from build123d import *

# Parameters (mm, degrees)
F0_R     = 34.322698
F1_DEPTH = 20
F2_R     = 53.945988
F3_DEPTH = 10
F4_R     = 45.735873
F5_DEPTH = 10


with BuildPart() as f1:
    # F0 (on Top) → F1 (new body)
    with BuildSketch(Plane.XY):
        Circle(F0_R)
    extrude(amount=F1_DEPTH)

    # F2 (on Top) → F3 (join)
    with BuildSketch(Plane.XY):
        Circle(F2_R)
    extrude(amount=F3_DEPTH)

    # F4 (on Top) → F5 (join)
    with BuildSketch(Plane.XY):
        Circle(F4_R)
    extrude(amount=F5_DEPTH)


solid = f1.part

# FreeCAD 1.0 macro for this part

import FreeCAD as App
import Part
import Sketcher

doc = App.newDocument("Part")
body = doc.addObject("PartDesign::Body", "Body")

sketch1 = body.newObject("Sketcher::SketchObject", "Sketch")
sketch1.AttachmentSupport = (doc.getObject("XY_Plane"), [""])
sketch1.MapMode = "FlatFace"
sketch1.addGeometry(Part.Circle(App.Vector(0, 0, 0), App.Vector(0, 0, 1), 34), False)
sketch1.addConstraint([
    Sketcher.Constraint("Coincident", 0, 3, -1, 1),
    Sketcher.Constraint("Diameter", 0, 68.645396),
])
pad1 = body.newObject("PartDesign::Pad", "Pad")
pad1.Profile = sketch1
pad1.Length = 20

sketch2 = body.newObject("Sketcher::SketchObject", "Sketch001")
sketch2.AttachmentSupport = (doc.getObject("XY_Plane"), [""])
sketch2.MapMode = "FlatFace"
sketch2.addGeometry(Part.Circle(App.Vector(0, 0, 0), App.Vector(0, 0, 1), 54), False)
sketch2.addConstraint([
    Sketcher.Constraint("Coincident", 0, 3, -1, 1),
    Sketcher.Constraint("Diameter", 0, 107.891976),
])
pad2 = body.newObject("PartDesign::Pad", "Pad001")
pad2.Profile = sketch2
pad2.Length = 10

sketch3 = body.newObject("Sketcher::SketchObject", "Sketch002")
sketch3.AttachmentSupport = (doc.getObject("XY_Plane"), [""])
sketch3.MapMode = "FlatFace"
sketch3.addGeometry(Part.Circle(App.Vector(0, 0, 0), App.Vector(0, 0, 1), 46), False)
sketch3.addConstraint([
    Sketcher.Constraint("Coincident", 0, 3, -1, 1),
    Sketcher.Constraint("Diameter", 0, 91.471746),
])
pad3 = body.newObject("PartDesign::Pad", "Pad002")
pad3.Profile = sketch3
pad3.Length = 10

doc.recompute()
